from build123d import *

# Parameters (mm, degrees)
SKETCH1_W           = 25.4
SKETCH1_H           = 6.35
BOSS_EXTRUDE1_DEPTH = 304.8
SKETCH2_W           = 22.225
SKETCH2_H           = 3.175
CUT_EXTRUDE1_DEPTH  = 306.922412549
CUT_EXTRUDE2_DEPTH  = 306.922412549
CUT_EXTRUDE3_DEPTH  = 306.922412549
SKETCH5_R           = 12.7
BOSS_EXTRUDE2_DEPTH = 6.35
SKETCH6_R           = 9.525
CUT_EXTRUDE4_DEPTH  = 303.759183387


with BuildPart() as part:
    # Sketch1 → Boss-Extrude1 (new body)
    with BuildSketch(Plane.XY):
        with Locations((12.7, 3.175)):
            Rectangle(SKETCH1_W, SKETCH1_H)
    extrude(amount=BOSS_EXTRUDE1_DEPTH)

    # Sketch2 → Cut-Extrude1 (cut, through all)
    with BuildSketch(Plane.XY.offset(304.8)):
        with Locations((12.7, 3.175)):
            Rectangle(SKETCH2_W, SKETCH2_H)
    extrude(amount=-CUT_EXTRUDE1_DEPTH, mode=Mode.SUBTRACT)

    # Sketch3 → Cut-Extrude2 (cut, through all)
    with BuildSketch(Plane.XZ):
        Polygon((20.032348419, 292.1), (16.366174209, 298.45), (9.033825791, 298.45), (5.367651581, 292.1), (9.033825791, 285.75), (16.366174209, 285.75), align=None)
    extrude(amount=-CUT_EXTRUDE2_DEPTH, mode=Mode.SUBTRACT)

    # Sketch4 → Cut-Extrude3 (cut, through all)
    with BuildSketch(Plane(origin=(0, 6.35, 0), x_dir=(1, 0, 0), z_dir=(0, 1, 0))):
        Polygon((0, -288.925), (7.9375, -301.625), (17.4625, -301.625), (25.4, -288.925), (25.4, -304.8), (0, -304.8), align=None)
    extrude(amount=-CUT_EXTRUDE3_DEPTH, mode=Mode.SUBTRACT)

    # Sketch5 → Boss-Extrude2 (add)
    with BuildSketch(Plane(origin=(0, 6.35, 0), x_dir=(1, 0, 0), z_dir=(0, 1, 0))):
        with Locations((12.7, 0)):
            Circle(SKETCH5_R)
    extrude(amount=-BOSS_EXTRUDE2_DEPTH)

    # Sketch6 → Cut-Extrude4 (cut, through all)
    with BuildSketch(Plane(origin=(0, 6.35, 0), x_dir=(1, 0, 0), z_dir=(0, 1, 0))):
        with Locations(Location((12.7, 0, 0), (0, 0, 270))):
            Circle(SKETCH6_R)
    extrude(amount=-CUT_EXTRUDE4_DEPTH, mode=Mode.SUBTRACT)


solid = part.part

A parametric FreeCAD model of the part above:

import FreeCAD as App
import Part
import Sketcher

V = App.Vector
Q = App.Units.Quantity

doc = App.newDocument("Part")
body = doc.addObject("PartDesign::Body", "Body")

sketch1 = body.newObject("Sketcher::SketchObject", "Sketch")
sketch1.AttachmentSupport = (doc.getObject("XY_Plane"), [""])
sketch1.MapMode = "FlatFace"
sketch1.addGeometry(Part.LineSegment(V(0, 6, 0), V(0, 0, 0)), False)
sketch1.addGeometry(Part.LineSegment(V(0, 0, 0), V(25, 0, 0)), False)
sketch1.addGeometry(Part.LineSegment(V(25, 0, 0), V(25, 6, 0)), False)
sketch1.addGeometry(Part.LineSegment(V(25, 6, 0), V(0, 6, 0)), False)
sketch1.addConstraint(Sketcher.Constraint("Coincident", 0, 2, 1, 1))
sketch1.addConstraint(Sketcher.Constraint("Coincident", 1, 2, 2, 1))
sketch1.addConstraint(Sketcher.Constraint("Coincident", 2, 2, 3, 1))
sketch1.addConstraint(Sketcher.Constraint("Coincident", 3, 2, 0, 1))
sketch1.addConstraint(Sketcher.Constraint("Vertical", 0))
sketch1.addConstraint(Sketcher.Constraint("Horizontal", 1))
sketch1.addConstraint(Sketcher.Constraint("Vertical", 2))
sketch1.addConstraint(Sketcher.Constraint("Horizontal", 3))
sketch1.addConstraint(Sketcher.Constraint("Coincident", 0, 2, -1, 1))
sketch1.addConstraint(Sketcher.Constraint("DistanceX", 1, 1, 1, 2, Q("1 in")))
sketch1.addConstraint(Sketcher.Constraint("DistanceY", 0, 2, 0, 1, Q("0.25 in")))
pad1 = body.newObject("PartDesign::Pad", "Pad")
pad1.Profile = sketch1
pad1.Length = Q("12 in")

sketch2 = body.newObject("Sketcher::SketchObject", "Sketch001")
sketch2.AttachmentSupport = (doc.getObject("XY_Plane"), [""])
sketch2.MapMode = "FlatFace"
sketch2.AttachmentOffset = App.Placement(V(0, 0, 12 * 25.4), App.Rotation())
sketch2.addGeometry(Part.LineSegment(V(1.6, 4.8, 0), V(1.6, 1.6, 0)), False)
sketch2.addGeometry(Part.LineSegment(V(1.6, 1.6, 0), V(23.8, 1.6, 0)), False)
sketch2.addGeometry(Part.LineSegment(V(23.8, 1.6, 0), V(23.8, 4.8, 0)), False)
sketch2.addGeometry(Part.LineSegment(V(23.8, 4.8, 0), V(1.6, 4.8, 0)), False)
sketch2.addConstraint(Sketcher.Constraint("Coincident", 0, 2, 1, 1))
sketch2.addConstraint(Sketcher.Constraint("Coincident", 1, 2, 2, 1))
sketch2.addConstraint(Sketcher.Constraint("Coincident", 2, 2, 3, 1))
sketch2.addConstraint(Sketcher.Constraint("Coincident", 3, 2, 0, 1))
sketch2.addConstraint(Sketcher.Constraint("Vertical", 0))
sketch2.addConstraint(Sketcher.Constraint("Horizontal", 1))
sketch2.addConstraint(Sketcher.Constraint("Vertical", 2))
sketch2.addConstraint(Sketcher.Constraint("Horizontal", 3))
sketch2.addConstraint(Sketcher.Constraint("DistanceX", 1, 1, 1, 2, Q("0.875 in")))
sketch2.addConstraint(Sketcher.Constraint("DistanceY", 0, 2, 0, 1, Q("0.125 in")))
sketch2.addConstraint(Sketcher.Constraint("DistanceX", -1, 1, 0, 2, Q("0.0625 in")))
sketch2.addConstraint(Sketcher.Constraint("DistanceY", -1, 1, 0, 2, Q("0.0625 in")))
pocket1 = body.newObject("PartDesign::Pocket", "Pocket")
pocket1.Profile = sketch2
pocket1.Type = "ThroughAll"

sketch3 = body.newObject("Sketcher::SketchObject", "Sketch002")
sketch3.AttachmentSupport = (doc.getObject("XZ_Plane"), [""])
sketch3.MapMode = "FlatFace"
sketch3.addGeometry(Part.LineSegment(V(20, 292, 0), V(16, 298, 0)), False)
sketch3.addGeometry(Part.LineSegment(V(16, 298, 0), V(9, 298, 0)), False)
sketch3.addGeometry(Part.LineSegment(V(9, 298, 0), V(5, 292, 0)), False)
sketch3.addGeometry(Part.LineSegment(V(5, 292, 0), V(9, 286, 0)), False)
sketch3.addGeometry(Part.LineSegment(V(9, 286, 0), V(16, 286, 0)), False)
sketch3.addGeometry(Part.LineSegment(V(16, 286, 0), V(20, 292, 0)), False)
sketch3.addConstraint(Sketcher.Constraint("Coincident", 0, 2, 1, 1))
sketch3.addConstraint(Sketcher.Constraint("Coincident", 1, 2, 2, 1))
sketch3.addConstraint(Sketcher.Constraint("Coincident", 2, 2, 3, 1))
sketch3.addConstraint(Sketcher.Constraint("Coincident", 3, 2, 4, 1))
sketch3.addConstraint(Sketcher.Constraint("Coincident", 4, 2, 5, 1))
sketch3.addConstraint(Sketcher.Constraint("Coincident", 5, 2, 0, 1))
sketch3.addConstraint(Sketcher.Constraint("Horizontal", 1))
sketch3.addConstraint(Sketcher.Constraint("Horizontal", 4))
sketch3.addConstraint(Sketcher.Constraint("Parallel", 0, 3))
sketch3.addConstraint(Sketcher.Constraint("Parallel", 2, 5))
sketch3.addConstraint(Sketcher.Constraint("Horizontal", 2, 2, 5, 2))
sketch3.addConstraint(Sketcher.Constraint("Vertical", 1, 2, 3, 2))
sketch3.addConstraint(Sketcher.Constraint("Vertical", 0, 2, 4, 2))
sketch3.addConstraint(Sketcher.Constraint("Angle", 0, Q("120 deg")))
sketch3.addConstraint(Sketcher.Constraint("DistanceY", -1, 1, 2, 2, Q("11.5 in")))
sketch3.addConstraint(Sketcher.Constraint("DistanceY", 3, 2, 1, 2, Q("0.5 in")))
sketch3.addConstraint(Sketcher.Constraint("DistanceX", 1, 2, 1, 1, Q("7.332348 mm")))
sketch3.addConstraint(Sketcher.Constraint("DistanceX", -1, 1, 2, 2, Q("5.367652 mm")))
pocket2 = body.newObject("PartDesign::Pocket", "Pocket001")
pocket2.Profile = sketch3
pocket2.Type = "ThroughAll"

sketch4 = body.newObject("Sketcher::SketchObject", "Sketch003")
sketch4.AttachmentSupport = (doc.getObject("XZ_Plane"), [""])
sketch4.MapMode = "FlatFace"
sketch4.AttachmentOffset = App.Placement(V(0, 0, -0.25 * 25.4), App.Rotation())
sketch4.addGeometry(Part.LineSegment(V(8, 302, 0), V(0, 289, 0)), False)
sketch4.addGeometry(Part.LineSegment(V(0, 289, 0), V(0, 305, 0)), False)
sketch4.addGeometry(Part.LineSegment(V(0, 305, 0), V(25, 305, 0)), False)
sketch4.addGeometry(Part.LineSegment(V(25, 305, 0), V(25, 289, 0)), False)
sketch4.addGeometry(Part.LineSegment(V(25, 289, 0), V(17, 302, 0)), False)
sketch4.addGeometry(Part.LineSegment(V(17, 302, 0), V(8, 302, 0)), False)
sketch4.addConstraint(Sketcher.Constraint("Coincident", 0, 2, 1, 1))
sketch4.addConstraint(Sketcher.Constraint("Coincident", 1, 2, 2, 1))
sketch4.addConstraint(Sketcher.Constraint("Coincident", 2, 2, 3, 1))
sketch4.addConstraint(Sketcher.Constraint("Coincident", 3, 2, 4, 1))
sketch4.addConstraint(Sketcher.Constraint("Coincident", 4, 2, 5, 1))
sketch4.addConstraint(Sketcher.Constraint("Coincident", 5, 2, 0, 1))
sketch4.addConstraint(Sketcher.Constraint("Vertical", 1))
sketch4.addConstraint(Sketcher.Constraint("Horizontal", 2))
sketch4.addConstraint(Sketcher.Constraint("Vertical", 3))
sketch4.addConstraint(Sketcher.Constraint("Horizontal", 5))
sketch4.addConstraint(Sketcher.Constraint("PointOnObject", 0, 2, -2))
sketch4.addConstraint(Sketcher.Constraint("Horizontal", 0, 2, 3, 2))
sketch4.addConstraint(Sketcher.Constraint("Equal", 0, 4))
sketch4.addConstraint(Sketcher.Constraint("DistanceX", 2, 1, 2, 2, Q("1 in")))
sketch4.addConstraint(Sketcher.Constraint("DistanceY", -1, 1, 1, 2, Q("12 in")))
sketch4.addConstraint(Sketcher.Constraint("DistanceY", 3, 2, 4, 2, Q("0.5 in")))
sketch4.addConstraint(Sketcher.Constraint("DistanceX", 5, 2, 5, 1, Q("0.375 in")))
sketch4.addConstraint(Sketcher.Constraint("DistanceY", 1, 1, 1, 2, Q("0.625 in")))
pocket3 = body.newObject("PartDesign::Pocket", "Pocket002")
pocket3.Profile = sketch4
pocket3.Type = "ThroughAll"
pocket3.Reversed = True

sketch5 = body.newObject("Sketcher::SketchObject", "Sketch004")
sketch5.AttachmentSupport = (doc.getObject("XZ_Plane"), [""])
sketch5.MapMode = "FlatFace"
sketch5.AttachmentOffset = App.Placement(V(0, 0, -0.25 * 25.4), App.Rotation())
sketch5.addGeometry(Part.Circle(V(13, 0, 0), V(0, 0, 1), 13), False)
sketch5.addConstraint(Sketcher.Constraint("PointOnObject", 0, 3, -1))
sketch5.addConstraint(Sketcher.Constraint("Diameter", 0, Q("1 in")))
sketch5.addConstraint(Sketcher.Constraint("DistanceX", -1, 1, 0, 3, Q("0.5 in")))
pad2 = body.newObject("PartDesign::Pad", "Pad001")
pad2.Profile = sketch5
pad2.Length = Q("0.25 in")

sketch6 = body.newObject("Sketcher::SketchObject", "Sketch005")
sketch6.AttachmentSupport = (doc.getObject("XZ_Plane"), [""])
sketch6.MapMode = "FlatFace"
sketch6.AttachmentOffset = App.Placement(V(0, 0, -0.25 * 25.4), App.Rotation())
sketch6.addGeometry(Part.Circle(V(13, 0, 0), V(0, 0, 1), 10), False)
sketch6.addConstraint(Sketcher.Constraint("PointOnObject", 0, 3, -1))
sketch6.addConstraint(Sketcher.Constraint("Diameter", 0, Q("0.75 in")))
sketch6.addConstraint(Sketcher.Constraint("DistanceX", -1, 1, 0, 3, Q("0.5 in")))
pocket4 = body.newObject("PartDesign::Pocket", "Pocket003")
pocket4.Profile = sketch6
pocket4.Type = "ThroughAll"
pocket4.Reversed = True

doc.recompute()
